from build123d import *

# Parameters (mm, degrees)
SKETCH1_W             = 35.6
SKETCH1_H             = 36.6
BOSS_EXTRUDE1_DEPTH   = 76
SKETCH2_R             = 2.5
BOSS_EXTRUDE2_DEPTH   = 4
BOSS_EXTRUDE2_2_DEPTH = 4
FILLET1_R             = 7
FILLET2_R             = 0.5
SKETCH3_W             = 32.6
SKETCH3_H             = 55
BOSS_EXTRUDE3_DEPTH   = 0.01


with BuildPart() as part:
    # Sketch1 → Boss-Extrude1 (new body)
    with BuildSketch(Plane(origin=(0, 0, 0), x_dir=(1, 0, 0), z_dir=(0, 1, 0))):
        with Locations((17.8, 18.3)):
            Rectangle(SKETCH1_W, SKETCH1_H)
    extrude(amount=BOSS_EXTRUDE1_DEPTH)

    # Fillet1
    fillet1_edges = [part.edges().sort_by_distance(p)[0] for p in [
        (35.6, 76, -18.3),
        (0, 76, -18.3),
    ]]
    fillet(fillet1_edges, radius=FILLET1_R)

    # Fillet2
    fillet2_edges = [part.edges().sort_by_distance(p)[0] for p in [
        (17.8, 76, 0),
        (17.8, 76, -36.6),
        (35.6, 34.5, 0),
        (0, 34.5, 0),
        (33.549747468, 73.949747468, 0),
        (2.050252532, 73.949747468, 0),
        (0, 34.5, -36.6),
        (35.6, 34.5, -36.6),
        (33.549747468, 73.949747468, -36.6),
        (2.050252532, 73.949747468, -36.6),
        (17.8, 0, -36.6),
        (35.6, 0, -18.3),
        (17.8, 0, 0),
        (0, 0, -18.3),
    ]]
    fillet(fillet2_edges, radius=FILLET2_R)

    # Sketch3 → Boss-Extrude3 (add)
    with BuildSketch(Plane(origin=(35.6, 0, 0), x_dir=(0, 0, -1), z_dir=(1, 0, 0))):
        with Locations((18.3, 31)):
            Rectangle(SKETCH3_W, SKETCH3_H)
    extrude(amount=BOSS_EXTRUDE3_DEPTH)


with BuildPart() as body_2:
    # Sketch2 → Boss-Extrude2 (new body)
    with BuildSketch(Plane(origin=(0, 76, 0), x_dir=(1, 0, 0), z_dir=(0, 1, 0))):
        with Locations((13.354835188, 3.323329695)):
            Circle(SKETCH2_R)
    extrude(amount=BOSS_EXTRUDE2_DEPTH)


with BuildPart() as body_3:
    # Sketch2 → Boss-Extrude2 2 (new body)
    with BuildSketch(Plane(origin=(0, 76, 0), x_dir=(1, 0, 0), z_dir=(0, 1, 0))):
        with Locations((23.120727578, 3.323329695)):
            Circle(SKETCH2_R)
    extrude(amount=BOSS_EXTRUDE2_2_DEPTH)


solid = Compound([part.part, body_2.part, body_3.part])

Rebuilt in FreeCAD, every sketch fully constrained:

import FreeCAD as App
import Part
import Sketcher
from FreeCAD import Vector


def edges_at(feature, points):
    """Names of the edges that pass closest to the given points."""
    edges = feature.Shape.Edges
    near = lambda p: min(range(len(edges)), key=lambda i: edges[i].distToShape(Part.Vertex(*p))[0])
    return sorted({f"Edge{near(p) + 1}" for p in points})

doc = App.newDocument("Part")
body = doc.addObject("PartDesign::Body", "Body")

sketch1 = body.newObject("Sketcher::SketchObject", "Sketch")
sketch1.AttachmentSupport = (doc.getObject("XZ_Plane"), [""])
sketch1.MapMode = "FlatFace"
sketch1.addGeometry([
    Part.LineSegment(Vector(0, -36.6, 0), Vector(0, 0, 0)),
    Part.LineSegment(Vector(0, 0, 0), Vector(35.6, 0, 0)),
    Part.LineSegment(Vector(35.6, 0, 0), Vector(35.6, -36.6, 0)),
    Part.LineSegment(Vector(35.6, -36.6, 0), Vector(0, -36.6, 0)),
], False)
sketch1.addConstraint([
    Sketcher.Constraint("Coincident", 0, 2, 1, 1),
    Sketcher.Constraint("Coincident", 1, 2, 2, 1),
    Sketcher.Constraint("Coincident", 2, 2, 3, 1),
    Sketcher.Constraint("Coincident", 3, 2, 0, 1),
    Sketcher.Constraint("Vertical", 0),
    Sketcher.Constraint("Horizontal", 1),
    Sketcher.Constraint("Vertical", 2),
    Sketcher.Constraint("Horizontal", 3),
    Sketcher.Constraint("Coincident", 0, 2, -1, 1),
    Sketcher.Constraint("DistanceX", 1, 1, 1, 2, 35.6),
    Sketcher.Constraint("DistanceY", 0, 1, 0, 2, 36.6),
])
pad1 = body.newObject("PartDesign::Pad", "Pad")
pad1.Profile = sketch1
pad1.Length = 76
pad1.Reversed = True
doc.recompute()

fillet = body.newObject("PartDesign::Fillet", "Fillet")
fillet.Base = (pad1, edges_at(pad1, [(35.6, 76, -18.3), (0, 76, -18.3)]))
fillet.Radius = 7
doc.recompute()

fillet2 = body.newObject("PartDesign::Fillet", "Fillet001")
fillet2.Base = (fillet, ["Edge1"])
fillet2.UseAllEdges = True
fillet2.Radius = 0.5

sketch2 = body.newObject("Sketcher::SketchObject", "Sketch001")
sketch2.AttachmentSupport = (doc.getObject("YZ_Plane"), [""])
sketch2.MapMode = "FlatFace"
sketch2.AttachmentOffset = App.Placement(Vector(0, 0, 35.6), App.Rotation())
sketch2.addGeometry([
    Part.LineSegment(Vector(58.5, -2, 0), Vector(3.5, -2, 0)),
    Part.LineSegment(Vector(3.5, -2, 0), Vector(3.5, -34.6, 0)),
    Part.LineSegment(Vector(3.5, -34.6, 0), Vector(58.5, -34.6, 0)),
    Part.LineSegment(Vector(58.5, -34.6, 0), Vector(58.5, -2, 0)),
], False)
sketch2.addConstraint([
    Sketcher.Constraint("Coincident", 0, 2, 1, 1),
    Sketcher.Constraint("Coincident", 1, 2, 2, 1),
    Sketcher.Constraint("Coincident", 2, 2, 3, 1),
    Sketcher.Constraint("Coincident", 3, 2, 0, 1),
    Sketcher.Constraint("Horizontal", 0),
    Sketcher.Constraint("Vertical", 1),
    Sketcher.Constraint("Horizontal", 2),
    Sketcher.Constraint("Vertical", 3),
    Sketcher.Constraint("DistanceX", 0, 2, 0, 1, 55.0),
    Sketcher.Constraint("DistanceY", 1, 2, 1, 1, 32.6),
    Sketcher.Constraint("DistanceY", 0, 2, -1, 1, 2.0),
    Sketcher.Constraint("DistanceX", -1, 1, 0, 2, 3.5),
])
pad2 = body.newObject("PartDesign::Pad", "Pad001")
pad2.Profile = sketch2
pad2.Length = 0.01
body2 = doc.addObject("PartDesign::Body", "Body001")

sketch3 = body2.newObject("Sketcher::SketchObject", "Sketch002")
sketch3.AttachmentSupport = (doc.getObject("XZ_Plane001"), [""])
sketch3.MapMode = "FlatFace"
sketch3.AttachmentOffset = App.Placement(Vector(0, 0, -76), App.Rotation())
sketch3.addGeometry(Part.Circle(Vector(13.354835, -3.32333, 0), Vector(0, 0, 1), 2.5), False)
sketch3.addConstraint([
    Sketcher.Constraint("Diameter", 0, 5.0),
    Sketcher.Constraint("DistanceY", 0, 3, -1, 1, 3.32333),
    Sketcher.Constraint("DistanceX", -1, 1, 0, 3, 13.354835),
])
pad3 = body2.newObject("PartDesign::Pad", "Pad002")
pad3.Profile = sketch3
pad3.Length = 4
pad3.Reversed = True
body3 = doc.addObject("PartDesign::Body", "Body002")

sketch4 = body3.newObject("Sketcher::SketchObject", "Sketch003")
sketch4.AttachmentSupport = (doc.getObject("XZ_Plane002"), [""])
sketch4.MapMode = "FlatFace"
sketch4.AttachmentOffset = App.Placement(Vector(0, 0, -76), App.Rotation())
sketch4.addGeometry(Part.Circle(Vector(23.120728, -3.32333, 0), Vector(0, 0, 1), 2.5), False)
sketch4.addConstraint([
    Sketcher.Constraint("Diameter", 0, 5.0),
    Sketcher.Constraint("DistanceY", 0, 3, -1, 1, 3.32333),
    Sketcher.Constraint("DistanceX", -1, 1, 0, 3, 23.120728),
])
pad4 = body3.newObject("PartDesign::Pad", "Pad003")
pad4.Profile = sketch4
pad4.Length = 4
pad4.Reversed = True

doc.recompute()
